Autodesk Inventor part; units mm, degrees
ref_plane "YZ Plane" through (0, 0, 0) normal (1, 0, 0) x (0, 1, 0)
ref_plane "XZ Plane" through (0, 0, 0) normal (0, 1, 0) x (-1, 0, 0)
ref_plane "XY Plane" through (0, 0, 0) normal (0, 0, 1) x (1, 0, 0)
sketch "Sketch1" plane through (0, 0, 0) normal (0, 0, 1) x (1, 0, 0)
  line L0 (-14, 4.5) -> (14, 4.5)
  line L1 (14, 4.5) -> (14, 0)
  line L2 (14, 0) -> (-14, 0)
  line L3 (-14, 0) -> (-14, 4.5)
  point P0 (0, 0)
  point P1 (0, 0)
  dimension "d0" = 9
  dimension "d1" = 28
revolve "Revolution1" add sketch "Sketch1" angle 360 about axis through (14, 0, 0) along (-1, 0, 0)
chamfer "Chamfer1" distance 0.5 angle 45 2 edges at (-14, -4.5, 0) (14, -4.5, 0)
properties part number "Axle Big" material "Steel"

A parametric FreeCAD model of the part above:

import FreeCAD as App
import Part
import Sketcher
from FreeCAD import Vector
Q = App.Units.Quantity


def edges_at(feature, points):
    """Names of the edges that pass closest to the given points."""
    edges = feature.Shape.Edges
    near = lambda p: min(range(len(edges)), key=lambda i: edges[i].distToShape(Part.Vertex(*p))[0])
    return sorted({f"Edge{near(p) + 1}" for p in points})

doc = App.newDocument("Part")
body = doc.addObject("PartDesign::Body", "Body")

sketch1 = body.newObject("Sketcher::SketchObject", "Sketch")
sketch1.AttachmentSupport = (doc.getObject("XY_Plane"), [""])
sketch1.MapMode = "FlatFace"
sketch1.addGeometry([
    Part.LineSegment(Vector(14, 4.5, 0), Vector(-14, 4.5, 0)),
    Part.LineSegment(Vector(-14, 4.5, 0), Vector(-14, 0, 0)),
    Part.LineSegment(Vector(-14, 0, 0), Vector(14, 0, 0)),
    Part.LineSegment(Vector(14, 0, 0), Vector(14, 4.5, 0)),
], False)
sketch1.addConstraint([
    Sketcher.Constraint("Coincident", 0, 2, 1, 1),
    Sketcher.Constraint("Coincident", 1, 2, 2, 1),
    Sketcher.Constraint("Coincident", 2, 2, 3, 1),
    Sketcher.Constraint("Coincident", 3, 2, 0, 1),
    Sketcher.Constraint("Horizontal", 0),
    Sketcher.Constraint("Vertical", 1),
    Sketcher.Constraint("Horizontal", 2),
    Sketcher.Constraint("Vertical", 3),
    Sketcher.Constraint("Symmetric", 1, 2, 2, 2, -1, 1),
    Sketcher.Constraint("DistanceX", 0, 2, 0, 1, Q("28 mm")),
    Sketcher.Constraint("DistanceY", 1, 2, 1, 1, Q("4.5 mm")),
])
revolution = body.newObject("PartDesign::Revolution", "Revolution")
revolution.Profile = sketch1
revolution.ReferenceAxis = (sketch1, ["H_Axis"])
revolution.Angle = 360
doc.recompute()

chamfer = body.newObject("PartDesign::Chamfer", "Chamfer")
chamfer.Base = (revolution, edges_at(revolution, [(-14, -4.5, 0), (14, -4.5, 0)]))
chamfer.Size = 0.5

doc.recompute()
